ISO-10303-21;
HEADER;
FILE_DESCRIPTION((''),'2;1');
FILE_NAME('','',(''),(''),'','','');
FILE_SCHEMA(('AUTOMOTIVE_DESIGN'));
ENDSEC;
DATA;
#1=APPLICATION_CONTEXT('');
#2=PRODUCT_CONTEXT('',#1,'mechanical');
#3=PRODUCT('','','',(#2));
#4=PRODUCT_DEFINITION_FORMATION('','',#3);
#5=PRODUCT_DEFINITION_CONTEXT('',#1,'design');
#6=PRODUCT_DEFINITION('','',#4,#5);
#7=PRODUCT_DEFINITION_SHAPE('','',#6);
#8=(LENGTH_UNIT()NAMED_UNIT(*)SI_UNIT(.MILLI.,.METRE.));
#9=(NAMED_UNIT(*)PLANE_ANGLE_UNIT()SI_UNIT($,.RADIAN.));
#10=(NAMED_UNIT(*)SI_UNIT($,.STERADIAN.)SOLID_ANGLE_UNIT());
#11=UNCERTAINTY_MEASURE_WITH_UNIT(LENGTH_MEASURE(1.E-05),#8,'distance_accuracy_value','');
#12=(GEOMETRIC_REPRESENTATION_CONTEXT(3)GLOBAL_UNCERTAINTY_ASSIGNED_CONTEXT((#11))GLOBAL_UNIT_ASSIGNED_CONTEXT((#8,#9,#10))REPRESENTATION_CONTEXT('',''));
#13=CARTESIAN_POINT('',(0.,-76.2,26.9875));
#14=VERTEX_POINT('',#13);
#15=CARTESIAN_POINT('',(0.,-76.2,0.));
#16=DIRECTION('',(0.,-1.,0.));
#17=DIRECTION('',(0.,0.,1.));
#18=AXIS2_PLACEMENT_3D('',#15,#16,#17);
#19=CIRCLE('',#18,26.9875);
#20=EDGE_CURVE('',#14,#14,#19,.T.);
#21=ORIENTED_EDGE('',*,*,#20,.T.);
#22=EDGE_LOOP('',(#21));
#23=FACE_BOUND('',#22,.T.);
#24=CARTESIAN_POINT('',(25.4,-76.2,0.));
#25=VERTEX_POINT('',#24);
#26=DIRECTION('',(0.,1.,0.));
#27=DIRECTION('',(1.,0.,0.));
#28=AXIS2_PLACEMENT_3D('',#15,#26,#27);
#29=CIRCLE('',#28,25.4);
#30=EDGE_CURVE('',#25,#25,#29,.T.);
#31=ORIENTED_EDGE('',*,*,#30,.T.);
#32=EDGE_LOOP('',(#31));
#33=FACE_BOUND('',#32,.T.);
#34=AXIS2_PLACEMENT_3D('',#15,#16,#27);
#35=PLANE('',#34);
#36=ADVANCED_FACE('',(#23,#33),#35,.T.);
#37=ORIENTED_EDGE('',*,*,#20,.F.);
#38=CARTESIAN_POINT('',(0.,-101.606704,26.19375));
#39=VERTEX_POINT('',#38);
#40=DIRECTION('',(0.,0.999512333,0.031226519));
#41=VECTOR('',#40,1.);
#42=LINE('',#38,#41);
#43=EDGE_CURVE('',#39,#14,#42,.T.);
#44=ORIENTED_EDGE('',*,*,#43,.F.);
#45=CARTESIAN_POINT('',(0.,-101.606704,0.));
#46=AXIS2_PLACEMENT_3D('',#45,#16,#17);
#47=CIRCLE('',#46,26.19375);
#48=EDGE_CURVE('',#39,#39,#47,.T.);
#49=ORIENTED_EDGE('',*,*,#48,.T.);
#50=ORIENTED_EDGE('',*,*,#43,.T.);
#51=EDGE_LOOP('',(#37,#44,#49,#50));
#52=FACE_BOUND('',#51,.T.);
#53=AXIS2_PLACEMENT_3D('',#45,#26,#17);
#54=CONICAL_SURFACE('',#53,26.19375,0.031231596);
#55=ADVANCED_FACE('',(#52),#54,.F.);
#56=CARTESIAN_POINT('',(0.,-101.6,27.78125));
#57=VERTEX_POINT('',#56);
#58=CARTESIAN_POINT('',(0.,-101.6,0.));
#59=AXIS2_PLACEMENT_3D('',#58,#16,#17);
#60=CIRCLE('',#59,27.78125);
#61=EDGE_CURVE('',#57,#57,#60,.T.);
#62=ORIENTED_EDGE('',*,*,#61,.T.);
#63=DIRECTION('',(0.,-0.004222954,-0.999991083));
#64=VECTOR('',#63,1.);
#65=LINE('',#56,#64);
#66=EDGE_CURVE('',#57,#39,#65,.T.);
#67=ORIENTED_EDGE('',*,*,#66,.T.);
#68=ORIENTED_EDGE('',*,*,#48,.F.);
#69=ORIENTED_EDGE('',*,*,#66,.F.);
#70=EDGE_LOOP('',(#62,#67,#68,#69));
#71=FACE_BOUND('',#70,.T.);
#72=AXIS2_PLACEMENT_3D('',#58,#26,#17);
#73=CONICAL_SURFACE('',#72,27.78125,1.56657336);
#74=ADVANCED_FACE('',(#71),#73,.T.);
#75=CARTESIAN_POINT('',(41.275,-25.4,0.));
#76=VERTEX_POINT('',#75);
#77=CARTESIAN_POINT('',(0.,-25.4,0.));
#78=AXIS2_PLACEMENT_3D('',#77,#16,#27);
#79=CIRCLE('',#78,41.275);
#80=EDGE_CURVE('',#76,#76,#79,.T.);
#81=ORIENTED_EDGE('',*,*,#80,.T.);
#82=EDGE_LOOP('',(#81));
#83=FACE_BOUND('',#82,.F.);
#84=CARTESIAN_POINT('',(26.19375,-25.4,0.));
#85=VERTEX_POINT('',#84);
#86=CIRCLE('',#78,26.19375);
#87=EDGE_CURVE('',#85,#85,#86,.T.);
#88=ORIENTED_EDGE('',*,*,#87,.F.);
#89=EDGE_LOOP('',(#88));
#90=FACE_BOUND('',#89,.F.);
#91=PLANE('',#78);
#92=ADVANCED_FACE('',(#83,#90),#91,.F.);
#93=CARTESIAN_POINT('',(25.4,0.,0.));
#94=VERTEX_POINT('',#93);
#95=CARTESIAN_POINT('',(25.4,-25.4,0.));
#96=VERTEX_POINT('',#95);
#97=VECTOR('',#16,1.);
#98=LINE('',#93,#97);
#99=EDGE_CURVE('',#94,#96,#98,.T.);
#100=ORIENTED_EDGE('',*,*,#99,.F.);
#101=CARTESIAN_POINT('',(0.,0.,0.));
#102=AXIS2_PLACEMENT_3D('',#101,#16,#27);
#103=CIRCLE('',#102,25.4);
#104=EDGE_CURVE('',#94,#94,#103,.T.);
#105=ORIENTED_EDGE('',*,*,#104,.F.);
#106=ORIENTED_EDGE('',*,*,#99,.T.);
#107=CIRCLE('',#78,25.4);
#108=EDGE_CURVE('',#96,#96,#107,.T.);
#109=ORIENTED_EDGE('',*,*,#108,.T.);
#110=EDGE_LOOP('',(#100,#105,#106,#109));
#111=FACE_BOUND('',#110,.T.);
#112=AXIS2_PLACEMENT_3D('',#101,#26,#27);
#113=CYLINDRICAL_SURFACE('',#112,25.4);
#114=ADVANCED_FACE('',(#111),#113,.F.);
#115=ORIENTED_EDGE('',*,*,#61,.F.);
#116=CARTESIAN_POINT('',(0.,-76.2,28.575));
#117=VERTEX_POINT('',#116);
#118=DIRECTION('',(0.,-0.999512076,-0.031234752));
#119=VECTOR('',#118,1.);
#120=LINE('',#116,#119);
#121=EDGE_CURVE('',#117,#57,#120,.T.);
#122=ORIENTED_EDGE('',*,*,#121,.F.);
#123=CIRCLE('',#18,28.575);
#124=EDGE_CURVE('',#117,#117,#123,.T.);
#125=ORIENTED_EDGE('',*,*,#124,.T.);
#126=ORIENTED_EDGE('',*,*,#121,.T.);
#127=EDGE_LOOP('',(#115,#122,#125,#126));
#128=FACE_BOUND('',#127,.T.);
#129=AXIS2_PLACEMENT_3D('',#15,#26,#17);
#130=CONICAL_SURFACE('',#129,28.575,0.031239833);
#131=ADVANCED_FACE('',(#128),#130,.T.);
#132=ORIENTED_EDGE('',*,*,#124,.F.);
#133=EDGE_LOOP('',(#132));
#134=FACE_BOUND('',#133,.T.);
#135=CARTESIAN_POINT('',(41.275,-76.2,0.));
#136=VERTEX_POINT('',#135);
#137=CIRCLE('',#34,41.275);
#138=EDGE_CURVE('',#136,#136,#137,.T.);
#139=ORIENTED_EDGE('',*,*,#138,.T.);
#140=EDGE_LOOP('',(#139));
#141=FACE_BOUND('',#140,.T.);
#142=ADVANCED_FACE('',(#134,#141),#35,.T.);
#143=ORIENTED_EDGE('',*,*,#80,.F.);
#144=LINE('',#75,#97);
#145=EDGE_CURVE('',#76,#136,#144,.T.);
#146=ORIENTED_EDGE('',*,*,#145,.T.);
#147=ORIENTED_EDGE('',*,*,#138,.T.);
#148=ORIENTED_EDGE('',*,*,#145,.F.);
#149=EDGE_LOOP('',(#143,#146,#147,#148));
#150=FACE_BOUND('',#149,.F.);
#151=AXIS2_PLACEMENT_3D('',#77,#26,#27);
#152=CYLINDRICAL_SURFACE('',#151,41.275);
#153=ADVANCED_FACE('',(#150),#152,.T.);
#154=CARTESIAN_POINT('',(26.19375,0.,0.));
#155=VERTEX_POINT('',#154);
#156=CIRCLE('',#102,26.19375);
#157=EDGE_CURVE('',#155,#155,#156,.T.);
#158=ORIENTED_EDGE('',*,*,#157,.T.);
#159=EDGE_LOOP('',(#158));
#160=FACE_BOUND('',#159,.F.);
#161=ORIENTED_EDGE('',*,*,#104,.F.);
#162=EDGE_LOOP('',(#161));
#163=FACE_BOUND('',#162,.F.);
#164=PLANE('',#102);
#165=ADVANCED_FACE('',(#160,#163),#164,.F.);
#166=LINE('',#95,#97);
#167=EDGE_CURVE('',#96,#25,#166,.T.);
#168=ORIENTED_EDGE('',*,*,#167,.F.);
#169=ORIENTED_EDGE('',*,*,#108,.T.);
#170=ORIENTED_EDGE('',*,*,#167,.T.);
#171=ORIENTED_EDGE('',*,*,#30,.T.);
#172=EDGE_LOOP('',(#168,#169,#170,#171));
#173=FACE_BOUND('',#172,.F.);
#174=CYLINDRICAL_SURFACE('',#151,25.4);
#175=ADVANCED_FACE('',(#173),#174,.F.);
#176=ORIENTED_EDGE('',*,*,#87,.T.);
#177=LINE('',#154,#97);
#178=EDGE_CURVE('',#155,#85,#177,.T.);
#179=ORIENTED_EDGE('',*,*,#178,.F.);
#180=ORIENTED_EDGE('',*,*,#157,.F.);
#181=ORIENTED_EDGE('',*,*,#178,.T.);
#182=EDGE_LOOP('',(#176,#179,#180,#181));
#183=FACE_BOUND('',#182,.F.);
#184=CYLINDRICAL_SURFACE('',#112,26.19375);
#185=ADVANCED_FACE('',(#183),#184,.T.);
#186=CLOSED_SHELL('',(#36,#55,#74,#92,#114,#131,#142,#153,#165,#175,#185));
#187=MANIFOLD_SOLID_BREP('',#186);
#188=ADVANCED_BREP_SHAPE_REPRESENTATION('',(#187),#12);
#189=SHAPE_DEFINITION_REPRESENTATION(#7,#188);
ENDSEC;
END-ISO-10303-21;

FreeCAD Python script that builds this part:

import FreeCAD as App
import Part
import Sketcher
Q = App.Units.Quantity


def add_polygon(sketch, points):
    """Adds a closed chain of lines whose ends are joined by coincident constraints."""
    first, n = sketch.GeometryCount, len(points)
    for a, b in zip(points, points[1:] + points[:1]):
        sketch.addGeometry(Part.LineSegment(App.Vector(*a, 0), App.Vector(*b, 0)), False)
    for i in range(n):
        sketch.addConstraint(Sketcher.Constraint("Coincident", first + i, 2, first + (i + 1) % n, 1))

doc = App.newDocument("Part")
body = doc.addObject("PartDesign::Body", "Body")

# Sketch on XZ plane
sketch1 = doc.addObject("Sketcher::SketchObject", "Sketch")
body.addObject(sketch1)
sketch1.AttachmentSupport = (doc.XZ_Plane, [""])
sketch1.MapMode = "FlatFace"
sketch1.addGeometry(Part.Circle(App.Vector(0, 0, 0), App.Vector(0, 0, 1), 26.19375), False)
sketch1.addGeometry(Part.Circle(App.Vector(0, 0, 0), App.Vector(0, 0, 1), 25.4), False)
sketch1.addConstraint(Sketcher.Constraint("Coincident", 0, 3, -1, 1))
sketch1.addConstraint(Sketcher.Constraint("Coincident", 1, 3, -1, 1))
sketch1.addConstraint(Sketcher.Constraint("Diameter", 1, Q("2 in")))
sketch1.addConstraint(Sketcher.Constraint("Diameter", 0, Q("2.0625 in")))
pad1 = doc.addObject("PartDesign::Pad", "Pad")
body.addObject(pad1)
pad1.Profile = sketch1
pad1.Length = Q("1 in")

# Sketch on XZ plane
sketch2 = doc.addObject("Sketcher::SketchObject", "Sketch001")
body.addObject(sketch2)
sketch2.AttachmentSupport = (doc.XZ_Plane, [""])
sketch2.MapMode = "FlatFace"
sketch2.AttachmentOffset = App.Placement(App.Vector(0, 0, 1 * 25.4), App.Rotation())
sketch2.addGeometry(Part.Circle(App.Vector(0, 0, 0), App.Vector(0, 0, 1), 41.275), False)
sketch2.addConstraint(Sketcher.Constraint("Coincident", 0, 3, -1, 1))
sketch2.addConstraint(Sketcher.Constraint("Diameter", 0, Q("3.25 in")))
pad2 = doc.addObject("PartDesign::Pad", "Pad001")
body.addObject(pad2)
pad2.Profile = sketch2
pad2.Length = Q("2 in")

# Sketch on YZ plane
sketch3 = doc.addObject("Sketcher::SketchObject", "Sketch002")
body.addObject(sketch3)
sketch3.AttachmentSupport = (doc.YZ_Plane, [""])
sketch3.MapMode = "FlatFace"
add_polygon(sketch3, [(-76.2, 28.575), (-101.6, 27.78125), (-101.606704, 26.19375), (-76.2, 26.9875)])  # lines 0-3
sketch3.addConstraint(Sketcher.Constraint("Vertical", 3))
sketch3.addConstraint(Sketcher.Constraint("DistanceX", 0, 2, -1, 1, Q("4 in")))
sketch3.addConstraint(Sketcher.Constraint("DistanceX", 2, 2, -1, 1, Q("3 in")))
sketch3.addConstraint(Sketcher.Constraint("DistanceY", 3, 1, 3, 2, Q("0.0625 in")))
sketch3.addConstraint(Sketcher.Constraint("DistanceY", -1, 1, 0, 2, Q("1.09375 in")))
sketch3.addConstraint(Sketcher.Constraint("DistanceY", -1, 1, 1, 2, Q("1.03125 in")))
sketch3.addConstraint(Sketcher.Constraint("DistanceY", -1, 1, 2, 2, Q("1.0625 in")))
sketch3.addConstraint(Sketcher.Constraint("Distance", 2, Q("25.4191 mm")))
revolution = doc.addObject("PartDesign::Revolution", "Revolution")
body.addObject(revolution)
revolution.Profile = sketch3
revolution.ReferenceAxis = (sketch3, ["H_Axis"])
revolution.Angle = 360

# Sketch on XZ plane
sketch4 = doc.addObject("Sketcher::SketchObject", "Sketch003")
body.addObject(sketch4)
sketch4.AttachmentSupport = (doc.XZ_Plane, [""])
sketch4.MapMode = "FlatFace"
sketch4.AttachmentOffset = App.Placement(App.Vector(0, 0, 1 * 25.4), App.Rotation())
sketch4.addGeometry(Part.Circle(App.Vector(0, 0, 0), App.Vector(0, 0, 1), 25.4), False)
sketch4.addConstraint(Sketcher.Constraint("Coincident", 0, 3, -1, 1))
sketch4.addConstraint(Sketcher.Constraint("Diameter", 0, Q("2 in")))
pocket1 = doc.addObject("PartDesign::Pocket", "Pocket")
body.addObject(pocket1)
pocket1.Profile = sketch4
pocket1.Length = Q("3 in")
pocket1.Reversed = True

doc.recompute()
